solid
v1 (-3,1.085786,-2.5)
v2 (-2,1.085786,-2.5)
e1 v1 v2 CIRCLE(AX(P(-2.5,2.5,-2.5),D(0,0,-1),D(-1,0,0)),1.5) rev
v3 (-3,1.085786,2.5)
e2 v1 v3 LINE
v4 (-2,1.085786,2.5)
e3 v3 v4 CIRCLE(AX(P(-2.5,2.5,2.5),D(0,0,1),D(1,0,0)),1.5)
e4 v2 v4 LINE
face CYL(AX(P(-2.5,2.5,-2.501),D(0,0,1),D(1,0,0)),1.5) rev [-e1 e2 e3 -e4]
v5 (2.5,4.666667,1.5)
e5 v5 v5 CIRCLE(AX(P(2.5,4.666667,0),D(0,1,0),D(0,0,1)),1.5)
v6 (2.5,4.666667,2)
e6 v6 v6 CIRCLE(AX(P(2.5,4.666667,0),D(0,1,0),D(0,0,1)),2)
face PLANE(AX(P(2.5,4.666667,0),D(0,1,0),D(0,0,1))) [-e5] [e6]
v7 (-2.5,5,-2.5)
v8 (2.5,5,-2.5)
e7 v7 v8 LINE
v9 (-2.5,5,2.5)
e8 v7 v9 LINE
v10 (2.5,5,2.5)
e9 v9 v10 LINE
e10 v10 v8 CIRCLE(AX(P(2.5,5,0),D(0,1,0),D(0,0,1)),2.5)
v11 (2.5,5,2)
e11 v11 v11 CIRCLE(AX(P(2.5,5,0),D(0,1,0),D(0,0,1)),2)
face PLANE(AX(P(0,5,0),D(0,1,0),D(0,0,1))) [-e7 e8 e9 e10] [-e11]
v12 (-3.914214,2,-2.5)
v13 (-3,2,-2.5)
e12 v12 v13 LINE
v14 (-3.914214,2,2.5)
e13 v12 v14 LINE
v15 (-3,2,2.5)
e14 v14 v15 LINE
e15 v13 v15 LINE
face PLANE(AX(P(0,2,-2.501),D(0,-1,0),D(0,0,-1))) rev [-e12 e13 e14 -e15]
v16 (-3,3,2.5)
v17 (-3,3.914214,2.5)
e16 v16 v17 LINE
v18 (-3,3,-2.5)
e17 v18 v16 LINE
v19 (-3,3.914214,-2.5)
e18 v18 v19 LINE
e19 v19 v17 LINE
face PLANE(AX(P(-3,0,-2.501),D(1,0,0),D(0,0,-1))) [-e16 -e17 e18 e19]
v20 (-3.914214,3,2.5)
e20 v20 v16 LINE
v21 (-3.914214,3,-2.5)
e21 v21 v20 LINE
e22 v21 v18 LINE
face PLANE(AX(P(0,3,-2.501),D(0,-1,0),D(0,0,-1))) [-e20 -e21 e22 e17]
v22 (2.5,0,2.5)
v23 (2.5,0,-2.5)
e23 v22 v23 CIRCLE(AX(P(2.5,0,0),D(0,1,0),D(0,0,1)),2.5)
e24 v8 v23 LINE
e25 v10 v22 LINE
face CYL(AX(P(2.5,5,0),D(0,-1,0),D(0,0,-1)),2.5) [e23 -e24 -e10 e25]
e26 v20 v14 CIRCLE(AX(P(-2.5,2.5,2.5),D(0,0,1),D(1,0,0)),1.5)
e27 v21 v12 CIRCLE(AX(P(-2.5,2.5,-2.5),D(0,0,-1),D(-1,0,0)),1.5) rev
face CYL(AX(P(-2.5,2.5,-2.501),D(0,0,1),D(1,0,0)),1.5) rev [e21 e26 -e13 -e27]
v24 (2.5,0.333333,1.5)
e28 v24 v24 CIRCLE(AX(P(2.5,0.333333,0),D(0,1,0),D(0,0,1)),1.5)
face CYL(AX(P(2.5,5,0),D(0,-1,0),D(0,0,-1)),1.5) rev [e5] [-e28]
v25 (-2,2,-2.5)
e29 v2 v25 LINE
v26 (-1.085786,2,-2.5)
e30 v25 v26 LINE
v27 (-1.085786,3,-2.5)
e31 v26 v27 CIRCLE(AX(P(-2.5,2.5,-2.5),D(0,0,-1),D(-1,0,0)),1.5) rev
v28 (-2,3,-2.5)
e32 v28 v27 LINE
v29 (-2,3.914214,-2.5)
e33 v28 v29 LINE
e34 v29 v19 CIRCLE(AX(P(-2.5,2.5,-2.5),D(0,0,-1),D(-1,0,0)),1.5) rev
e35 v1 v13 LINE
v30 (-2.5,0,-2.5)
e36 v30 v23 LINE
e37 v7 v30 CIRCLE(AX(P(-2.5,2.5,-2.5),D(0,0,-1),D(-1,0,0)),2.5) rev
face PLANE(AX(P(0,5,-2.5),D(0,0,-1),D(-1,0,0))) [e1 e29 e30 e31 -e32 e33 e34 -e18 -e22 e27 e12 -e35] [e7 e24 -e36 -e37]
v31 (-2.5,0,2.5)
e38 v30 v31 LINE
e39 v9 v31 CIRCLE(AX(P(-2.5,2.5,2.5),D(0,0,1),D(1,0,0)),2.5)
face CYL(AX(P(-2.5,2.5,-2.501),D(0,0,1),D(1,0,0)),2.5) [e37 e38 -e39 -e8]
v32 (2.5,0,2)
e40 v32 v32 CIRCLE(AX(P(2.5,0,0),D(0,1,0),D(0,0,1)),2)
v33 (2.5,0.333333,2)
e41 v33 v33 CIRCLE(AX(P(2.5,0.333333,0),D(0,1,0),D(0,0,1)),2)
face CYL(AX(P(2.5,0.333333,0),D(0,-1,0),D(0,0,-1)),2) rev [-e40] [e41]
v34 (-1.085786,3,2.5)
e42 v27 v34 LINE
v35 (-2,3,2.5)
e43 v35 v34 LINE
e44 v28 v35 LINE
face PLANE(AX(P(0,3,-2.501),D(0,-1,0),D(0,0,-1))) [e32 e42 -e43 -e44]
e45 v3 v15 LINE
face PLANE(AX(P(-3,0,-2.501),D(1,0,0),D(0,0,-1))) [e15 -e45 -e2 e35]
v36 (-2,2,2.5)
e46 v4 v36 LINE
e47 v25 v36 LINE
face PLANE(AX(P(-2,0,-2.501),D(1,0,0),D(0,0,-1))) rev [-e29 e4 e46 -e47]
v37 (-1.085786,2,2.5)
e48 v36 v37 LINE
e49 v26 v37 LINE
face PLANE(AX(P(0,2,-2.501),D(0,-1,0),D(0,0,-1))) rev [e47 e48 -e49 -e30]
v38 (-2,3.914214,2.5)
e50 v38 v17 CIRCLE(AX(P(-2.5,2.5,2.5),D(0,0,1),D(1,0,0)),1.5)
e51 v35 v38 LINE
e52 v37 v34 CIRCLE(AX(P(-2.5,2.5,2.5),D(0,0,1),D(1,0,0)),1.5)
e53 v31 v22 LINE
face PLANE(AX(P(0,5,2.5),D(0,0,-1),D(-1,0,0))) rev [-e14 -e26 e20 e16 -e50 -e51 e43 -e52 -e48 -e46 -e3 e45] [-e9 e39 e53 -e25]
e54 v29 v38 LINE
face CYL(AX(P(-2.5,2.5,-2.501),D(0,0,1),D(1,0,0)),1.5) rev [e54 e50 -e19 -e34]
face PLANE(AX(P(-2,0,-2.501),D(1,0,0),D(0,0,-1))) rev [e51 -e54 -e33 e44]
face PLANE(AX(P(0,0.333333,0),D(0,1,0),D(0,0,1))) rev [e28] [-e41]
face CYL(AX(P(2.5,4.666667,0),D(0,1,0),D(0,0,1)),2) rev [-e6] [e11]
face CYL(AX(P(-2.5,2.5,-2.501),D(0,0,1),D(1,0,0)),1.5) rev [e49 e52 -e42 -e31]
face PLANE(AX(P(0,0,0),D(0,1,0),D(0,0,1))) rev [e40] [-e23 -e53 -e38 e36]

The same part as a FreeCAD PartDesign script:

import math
import FreeCAD as App
import Part
import Sketcher
Q = App.Units.Quantity


def add_polygon(sketch, points):
    """Adds a closed chain of lines whose ends are joined by coincident constraints."""
    first, n = sketch.GeometryCount, len(points)
    for a, b in zip(points, points[1:] + points[:1]):
        sketch.addGeometry(Part.LineSegment(App.Vector(*a, 0), App.Vector(*b, 0)), False)
    for i in range(n):
        sketch.addConstraint(Sketcher.Constraint("Coincident", first + i, 2, first + (i + 1) % n, 1))

doc = App.newDocument("Part")
params = doc.addObject("Spreadsheet::Sheet", "Params")
for row, (alias, value) in enumerate([
    ("sketch1_diameter", "3 mm"),
    ("sketch1_radius", "2.5 mm"),
    ("sketch1_width", "7.5 mm"),
    ("pad1_length", "5 mm"),
    ("sketch2_diameter", "4 mm"),
    ("sketch2_diameter2", "3 mm"),
    ("pocket1_length", "0.333333 mm"),
    ("sketch3_diameter", "4 mm"),
    ("sketch3_diameter2", "3 mm"),
    ("pocket2_length", "0.333333 mm"),
    ("sketch4_radius", "2.5 mm"),
    ("sketch5_radius", "2.5 mm"),
    ("sketch6_radius", "1.5 mm"),
    ("sketch6_height", "1 mm"),
    ("sketch7_radius", "1.5 mm"),
    ("sketch7_width", "1 mm"),
    ("sketch8_width", "1 mm"),
    ("sketch9_radius", "1.5 mm"),
    ("sketch9_height", "1 mm"),
    ("sketch10_radius", "1.5 mm"),
    ("sketch10_width", "1 mm"),
], start=1):
    params.set(f"A{row}", alias)
    params.set(f"B{row}", "=" + value)
    params.setAlias(f"B{row}", alias)

body = doc.addObject("PartDesign::Body", "Body")

# Sketch on XZ plane
sketch1 = body.newObject("Sketcher::SketchObject", "Sketch")
sketch1.AttachmentSupport = (doc.getObject("XZ_Plane"), [""])
sketch1.MapMode = "FlatFace"
sketch1.addGeometry([
    Part.LineSegment(App.Vector(-5, -2.5, 0), App.Vector(-5, 2.5, 0)),  # 0
    Part.LineSegment(App.Vector(-5, 2.5, 0), App.Vector(2.5, 2.5, 0)),  # 1
    Part.ArcOfCircle(Part.Circle(App.Vector(2.5, 0, 0), App.Vector(0, 0, 1), 2.5), math.radians(-90), math.radians(90)),  # 2
    Part.LineSegment(App.Vector(2.5, -2.5, 0), App.Vector(-5, -2.5, 0)),  # 3
    Part.Circle(App.Vector(2.5, 0, 0), App.Vector(0, 0, 1), 1.5),  # 4
], False)
sketch1.addConstraint([
    Sketcher.Constraint("Coincident", 0, 2, 1, 1),
    Sketcher.Constraint("Tangent", 1, 2, 2, 2),
    Sketcher.Constraint("Tangent", 2, 1, 3, 1),
    Sketcher.Constraint("Coincident", 3, 2, 0, 1),
    Sketcher.Constraint("Vertical", 0),
    Sketcher.Constraint("Horizontal", 1),
    Sketcher.Constraint("Horizontal", 3),
    Sketcher.Constraint("Coincident", 4, 3, 2, 3),
    Sketcher.Constraint("PointOnObject", 2, 3, -1),
    Sketcher.Constraint("Diameter", 4, Q("3 mm")),
    Sketcher.Constraint("Radius", 2, Q("2.5 mm")),
    Sketcher.Constraint("DistanceX", 1, 1, 1, 2, Q("7.5 mm")),
    Sketcher.Constraint("DistanceX", 0, 2, -1, 1, Q("5 mm")),
])
sketch1.setExpression("Constraints[9]", "Params.sketch1_diameter")
sketch1.setExpression("Constraints[10]", "Params.sketch1_radius")
sketch1.setExpression("Constraints[11]", "Params.sketch1_width")
pad1 = body.newObject("PartDesign::Pad", "Pad")
pad1.Profile = sketch1
pad1.setExpression("Length", "Params.pad1_length")
pad1.Reversed = True

# Sketch on XZ plane
sketch2 = body.newObject("Sketcher::SketchObject", "Sketch001")
sketch2.AttachmentSupport = (doc.getObject("XZ_Plane"), [""])
sketch2.MapMode = "FlatFace"
sketch2.addGeometry([
    Part.Circle(App.Vector(2.5, 0, 0), App.Vector(0, 0, 1), 2),
    Part.Circle(App.Vector(2.5, 0, 0), App.Vector(0, 0, 1), 1.5),
], False)
sketch2.addConstraint([
    Sketcher.Constraint("Coincident", 1, 3, 0, 3),
    Sketcher.Constraint("PointOnObject", 0, 3, -1),
    Sketcher.Constraint("Diameter", 0, Q("4 mm")),
    Sketcher.Constraint("Diameter", 1, Q("3 mm")),
    Sketcher.Constraint("DistanceX", -1, 1, 0, 3, Q("2.5 mm")),
])
sketch2.setExpression("Constraints[2]", "Params.sketch2_diameter")
sketch2.setExpression("Constraints[3]", "Params.sketch2_diameter2")
pocket1 = body.newObject("PartDesign::Pocket", "Pocket")
pocket1.Profile = sketch2
pocket1.setExpression("Length", "Params.pocket1_length")

# Sketch on XZ plane
sketch3 = body.newObject("Sketcher::SketchObject", "Sketch002")
sketch3.AttachmentSupport = (doc.getObject("XZ_Plane"), [""])
sketch3.MapMode = "FlatFace"
sketch3.AttachmentOffset = App.Placement(App.Vector(0, 0, -5), App.Rotation())
sketch3.addGeometry([
    Part.Circle(App.Vector(2.5, 0, 0), App.Vector(0, 0, 1), 2),
    Part.Circle(App.Vector(2.5, 0, 0), App.Vector(0, 0, 1), 1.5),
], False)
sketch3.addConstraint([
    Sketcher.Constraint("Coincident", 1, 3, 0, 3),
    Sketcher.Constraint("PointOnObject", 0, 3, -1),
    Sketcher.Constraint("Diameter", 0, Q("4 mm")),
    Sketcher.Constraint("Diameter", 1, Q("3 mm")),
    Sketcher.Constraint("DistanceX", -1, 1, 0, 3, Q("2.5 mm")),
])
sketch3.setExpression("Constraints[2]", "Params.sketch3_diameter")
sketch3.setExpression("Constraints[3]", "Params.sketch3_diameter2")
pocket2 = body.newObject("PartDesign::Pocket", "Pocket001")
pocket2.Profile = sketch3
pocket2.setExpression("Length", "Params.pocket2_length")
pocket2.Reversed = True

# Sketch on XY plane
sketch4 = body.newObject("Sketcher::SketchObject", "Sketch003")
sketch4.AttachmentSupport = (doc.getObject("XY_Plane"), [""])
sketch4.MapMode = "FlatFace"
sketch4.AttachmentOffset = App.Placement(App.Vector(0, 0, 2.5), App.Rotation())
sketch4.addGeometry([
    Part.LineSegment(App.Vector(-2.5, 5, 0), App.Vector(-5, 5, 0)),
    Part.LineSegment(App.Vector(-5, 5, 0), App.Vector(-5, 2.5, 0)),
    Part.ArcOfCircle(Part.Circle(App.Vector(-2.5, 2.5, 0), App.Vector(0, 0, 1), 2.5), math.radians(90), math.radians(180)),
], False)
sketch4.addConstraint([
    Sketcher.Constraint("Coincident", 0, 2, 1, 1),
    Sketcher.Constraint("Tangent", 1, 2, 2, 2),
    Sketcher.Constraint("Tangent", 2, 1, 0, 1),
    Sketcher.Constraint("Horizontal", 0),
    Sketcher.Constraint("Vertical", 1),
    Sketcher.Constraint("Radius", 2, Q("2.5 mm")),
    Sketcher.Constraint("DistanceX", 0, 2, -1, 1, Q("5 mm")),
    Sketcher.Constraint("DistanceY", -1, 1, 0, 2, Q("5 mm")),
])
sketch4.setExpression("Constraints[5]", "Params.sketch4_radius")
pocket3 = body.newObject("PartDesign::Pocket", "Pocket002")
pocket3.Profile = sketch4
pocket3.Type = "UpToFirst"

# Sketch on XY plane
sketch5 = body.newObject("Sketcher::SketchObject", "Sketch004")
sketch5.AttachmentSupport = (doc.getObject("XY_Plane"), [""])
sketch5.MapMode = "FlatFace"
sketch5.AttachmentOffset = App.Placement(App.Vector(0, 0, 2.5), App.Rotation())
sketch5.addGeometry([
    Part.ArcOfCircle(Part.Circle(App.Vector(-2.5, 2.5, 0), App.Vector(0, 0, 1), 2.5), math.radians(180), math.radians(270)),
    Part.LineSegment(App.Vector(-5, 2.5, 0), App.Vector(-5, 0, 0)),
    Part.LineSegment(App.Vector(-5, 0, 0), App.Vector(-2.5, 0, 0)),
], False)
sketch5.addConstraint([
    Sketcher.Constraint("Tangent", 0, 1, 1, 1),
    Sketcher.Constraint("Coincident", 1, 2, 2, 1),
    Sketcher.Constraint("Tangent", 2, 2, 0, 2),
    Sketcher.Constraint("Vertical", 1),
    Sketcher.Constraint("Horizontal", 2),
    Sketcher.Constraint("PointOnObject", 1, 2, -1),
    Sketcher.Constraint("Radius", 0, Q("2.5 mm")),
    Sketcher.Constraint("DistanceX", 0, 1, -1, 1, Q("5 mm")),
])
sketch5.setExpression("Constraints[6]", "Params.sketch5_radius")
pocket4 = body.newObject("PartDesign::Pocket", "Pocket003")
pocket4.Profile = sketch5
pocket4.Type = "UpToFirst"

# Sketch on XY plane
sketch6 = body.newObject("Sketcher::SketchObject", "Sketch005")
sketch6.AttachmentSupport = (doc.getObject("XY_Plane"), [""])
sketch6.MapMode = "FlatFace"
sketch6.AttachmentOffset = App.Placement(App.Vector(0, 0, 2.5), App.Rotation())
sketch6.addGeometry([
    Part.LineSegment(App.Vector(-3.9, 2, 0), App.Vector(-3, 2, 0)),  # 0
    Part.LineSegment(App.Vector(-3, 2, 0), App.Vector(-3, 3, 0)),  # 1
    Part.LineSegment(App.Vector(-3, 3, 0), App.Vector(-3.9, 3, 0)),  # 2
    Part.ArcOfCircle(Part.Circle(App.Vector(-2.5, 2.5, 0), App.Vector(0, 0, 1), 1.5), math.radians(160.53), math.radians(180)),  # 3
    Part.ArcOfCircle(Part.Circle(App.Vector(-2.5, 2.5, 0), App.Vector(0, 0, 1), 1.5), math.radians(-180), math.radians(-160.53)),  # 4
], False)
sketch6.addConstraint([
    Sketcher.Constraint("Coincident", 0, 2, 1, 1),
    Sketcher.Constraint("Coincident", 1, 2, 2, 1),
    Sketcher.Constraint("Coincident", 2, 2, 3, 1),
    Sketcher.Constraint("Tangent", 3, 2, 4, 1),
    Sketcher.Constraint("Coincident", 4, 2, 0, 1),
    Sketcher.Constraint("Horizontal", 0),
    Sketcher.Constraint("Vertical", 1),
    Sketcher.Constraint("Horizontal", 2),
    Sketcher.Constraint("Equal", 3, 4),
    Sketcher.Constraint("Horizontal", 4, 3, 3, 2),
    Sketcher.Constraint("Vertical", 2, 2, 4, 2),
    Sketcher.Constraint("Radius", 3, Q("1.5 mm")),
    Sketcher.Constraint("DistanceY", 1, 1, 1, 2, Q("1 mm")),
    Sketcher.Constraint("DistanceX", 0, 2, -1, 1, Q("3 mm")),
    Sketcher.Constraint("DistanceY", -1, 1, 0, 2, Q("2 mm")),
    Sketcher.Constraint("DistanceX", 3, 2, -1, 1, Q("4 mm")),
])
sketch6.setExpression("Constraints[11]", "Params.sketch6_radius")
sketch6.setExpression("Constraints[12]", "Params.sketch6_height")
pocket5 = body.newObject("PartDesign::Pocket", "Pocket004")
pocket5.Profile = sketch6
pocket5.Type = "UpToFirst"

# Sketch on XY plane
sketch7 = body.newObject("Sketcher::SketchObject", "Sketch006")
sketch7.AttachmentSupport = (doc.getObject("XY_Plane"), [""])
sketch7.MapMode = "FlatFace"
sketch7.AttachmentOffset = App.Placement(App.Vector(0, 0, 2.5), App.Rotation())
sketch7.addGeometry([
    Part.LineSegment(App.Vector(-3, 3.9, 0), App.Vector(-3, 3, 0)),  # 0
    Part.LineSegment(App.Vector(-3, 3, 0), App.Vector(-2, 3, 0)),  # 1
    Part.LineSegment(App.Vector(-2, 3, 0), App.Vector(-2, 3.9, 0)),  # 2
    Part.ArcOfCircle(Part.Circle(App.Vector(-2.5, 2.5, 0), App.Vector(0, 0, 1), 1.5), math.radians(70.53), math.radians(90)),  # 3
    Part.ArcOfCircle(Part.Circle(App.Vector(-2.5, 2.5, 0), App.Vector(0, 0, 1), 1.5), math.radians(90), math.radians(109.47)),  # 4
], False)
sketch7.addConstraint([
    Sketcher.Constraint("Coincident", 0, 2, 1, 1),
    Sketcher.Constraint("Coincident", 1, 2, 2, 1),
    Sketcher.Constraint("Coincident", 2, 2, 3, 1),
    Sketcher.Constraint("Tangent", 3, 2, 4, 1),
    Sketcher.Constraint("Coincident", 4, 2, 0, 1),
    Sketcher.Constraint("Vertical", 0),
    Sketcher.Constraint("Horizontal", 1),
    Sketcher.Constraint("Vertical", 2),
    Sketcher.Constraint("Equal", 3, 4),
    Sketcher.Constraint("Horizontal", 2, 2, 4, 2),
    Sketcher.Constraint("Vertical", 4, 3, 3, 2),
    Sketcher.Constraint("Radius", 3, Q("1.5 mm")),
    Sketcher.Constraint("DistanceX", 1, 1, 1, 2, Q("1 mm")),
    Sketcher.Constraint("DistanceX", 0, 2, -1, 1, Q("3 mm")),
    Sketcher.Constraint("DistanceY", -1, 1, 0, 2, Q("3 mm")),
    Sketcher.Constraint("DistanceY", -1, 1, 3, 2, Q("4 mm")),
])
sketch7.setExpression("Constraints[11]", "Params.sketch7_radius")
sketch7.setExpression("Constraints[12]", "Params.sketch7_width")
pocket6 = body.newObject("PartDesign::Pocket", "Pocket005")
pocket6.Profile = sketch7
pocket6.Type = "UpToFirst"

# Sketch on XY plane
sketch8 = body.newObject("Sketcher::SketchObject", "Sketch007")
sketch8.AttachmentSupport = (doc.getObject("XY_Plane"), [""])
sketch8.MapMode = "FlatFace"
sketch8.AttachmentOffset = App.Placement(App.Vector(0, 0, 2.5), App.Rotation())
add_polygon(sketch8, [(-3, 3), (-3, 2), (-2, 2), (-2, 3)])  # lines 0-3
sketch8.addConstraint([
    Sketcher.Constraint("Vertical", 0),
    Sketcher.Constraint("Horizontal", 1),
    Sketcher.Constraint("Vertical", 2),
    Sketcher.Constraint("Horizontal", 3),
    Sketcher.Constraint("Equal", 3, 0),
    Sketcher.Constraint("DistanceX", 1, 1, 1, 2, Q("1 mm")),
    Sketcher.Constraint("DistanceX", 0, 2, -1, 1, Q("3 mm")),
    Sketcher.Constraint("DistanceY", -1, 1, 0, 2, Q("2 mm")),
])
sketch8.setExpression("Constraints[9]", "Params.sketch8_width")
pocket7 = body.newObject("PartDesign::Pocket", "Pocket006")
pocket7.Profile = sketch8
pocket7.Type = "UpToFirst"

# Sketch on XY plane
sketch9 = body.newObject("Sketcher::SketchObject", "Sketch008")
sketch9.AttachmentSupport = (doc.getObject("XY_Plane"), [""])
sketch9.MapMode = "FlatFace"
sketch9.AttachmentOffset = App.Placement(App.Vector(0, 0, 2.5), App.Rotation())
sketch9.addGeometry([
    Part.LineSegment(App.Vector(-2, 3, 0), App.Vector(-2, 2, 0)),  # 0
    Part.LineSegment(App.Vector(-2, 2, 0), App.Vector(-1.1, 2, 0)),  # 1
    Part.ArcOfCircle(Part.Circle(App.Vector(-2.5, 2.5, 0), App.Vector(0, 0, 1), 1.5), math.radians(-19.47), math.radians(0)),  # 2
    Part.ArcOfCircle(Part.Circle(App.Vector(-2.5, 2.5, 0), App.Vector(0, 0, 1), 1.5), math.radians(0), math.radians(19.47)),  # 3
    Part.LineSegment(App.Vector(-1.1, 3, 0), App.Vector(-2, 3, 0)),  # 4
], False)
sketch9.addConstraint([
    Sketcher.Constraint("Coincident", 0, 2, 1, 1),
    Sketcher.Constraint("Coincident", 1, 2, 2, 1),
    Sketcher.Constraint("Tangent", 2, 2, 3, 1),
    Sketcher.Constraint("Coincident", 3, 2, 4, 1),
    Sketcher.Constraint("Coincident", 4, 2, 0, 1),
    Sketcher.Constraint("Vertical", 0),
    Sketcher.Constraint("Horizontal", 1),
    Sketcher.Constraint("Horizontal", 4),
    Sketcher.Constraint("Equal", 2, 3),
    Sketcher.Constraint("Horizontal", 3, 3, 2, 2),
    Sketcher.Constraint("Vertical", 1, 2, 3, 2),
    Sketcher.Constraint("Radius", 2, Q("1.5 mm")),
    Sketcher.Constraint("DistanceY", 0, 2, 0, 1, Q("1 mm")),
    Sketcher.Constraint("DistanceX", 0, 2, -1, 1, Q("2 mm")),
    Sketcher.Constraint("DistanceY", -1, 1, 0, 2, Q("2 mm")),
    Sketcher.Constraint("DistanceX", 2, 2, -1, 1, Q("1 mm")),
])
sketch9.setExpression("Constraints[11]", "Params.sketch9_radius")
sketch9.setExpression("Constraints[12]", "Params.sketch9_height")
pocket8 = body.newObject("PartDesign::Pocket", "Pocket007")
pocket8.Profile = sketch9
pocket8.Type = "UpToFirst"

# Sketch on XY plane
sketch10 = body.newObject("Sketcher::SketchObject", "Sketch009")
sketch10.AttachmentSupport = (doc.getObject("XY_Plane"), [""])
sketch10.MapMode = "FlatFace"
sketch10.AttachmentOffset = App.Placement(App.Vector(0, 0, 2.5), App.Rotation())
sketch10.addGeometry([
    Part.ArcOfCircle(Part.Circle(App.Vector(-2.5, 2.5, 0), App.Vector(0, 0, 1), 1.5), math.radians(-109.47), math.radians(-90)),  # 0
    Part.ArcOfCircle(Part.Circle(App.Vector(-2.5, 2.5, 0), App.Vector(0, 0, 1), 1.5), math.radians(-90), math.radians(-70.53)),  # 1
    Part.LineSegment(App.Vector(-2, 1.1, 0), App.Vector(-2, 2, 0)),  # 2
    Part.LineSegment(App.Vector(-2, 2, 0), App.Vector(-3, 2, 0)),  # 3
    Part.LineSegment(App.Vector(-3, 2, 0), App.Vector(-3, 1.1, 0)),  # 4
], False)
sketch10.addConstraint([
    Sketcher.Constraint("Tangent", 0, 2, 1, 1),
    Sketcher.Constraint("Coincident", 1, 2, 2, 1),
    Sketcher.Constraint("Coincident", 2, 2, 3, 1),
    Sketcher.Constraint("Coincident", 3, 2, 4, 1),
    Sketcher.Constraint("Coincident", 4, 2, 0, 1),
    Sketcher.Constraint("Vertical", 2),
    Sketcher.Constraint("Horizontal", 3),
    Sketcher.Constraint("Vertical", 4),
    Sketcher.Constraint("Equal", 0, 1),
    Sketcher.Constraint("Horizontal", 1, 2, 4, 2),
    Sketcher.Constraint("Vertical", 1, 3, 0, 2),
    Sketcher.Constraint("Radius", 0, Q("1.5 mm")),
    Sketcher.Constraint("DistanceX", 3, 2, 3, 1, Q("1 mm")),
    Sketcher.Constraint("DistanceY", -1, 1, 0, 2, Q("1 mm")),
    Sketcher.Constraint("DistanceX", 1, 2, -1, 1, Q("2 mm")),
    Sketcher.Constraint("DistanceY", -1, 1, 2, 2, Q("2 mm")),
])
sketch10.setExpression("Constraints[11]", "Params.sketch10_radius")
sketch10.setExpression("Constraints[12]", "Params.sketch10_width")
pocket9 = body.newObject("PartDesign::Pocket", "Pocket008")
pocket9.Profile = sketch10
pocket9.Type = "UpToFirst"

doc.recompute()
